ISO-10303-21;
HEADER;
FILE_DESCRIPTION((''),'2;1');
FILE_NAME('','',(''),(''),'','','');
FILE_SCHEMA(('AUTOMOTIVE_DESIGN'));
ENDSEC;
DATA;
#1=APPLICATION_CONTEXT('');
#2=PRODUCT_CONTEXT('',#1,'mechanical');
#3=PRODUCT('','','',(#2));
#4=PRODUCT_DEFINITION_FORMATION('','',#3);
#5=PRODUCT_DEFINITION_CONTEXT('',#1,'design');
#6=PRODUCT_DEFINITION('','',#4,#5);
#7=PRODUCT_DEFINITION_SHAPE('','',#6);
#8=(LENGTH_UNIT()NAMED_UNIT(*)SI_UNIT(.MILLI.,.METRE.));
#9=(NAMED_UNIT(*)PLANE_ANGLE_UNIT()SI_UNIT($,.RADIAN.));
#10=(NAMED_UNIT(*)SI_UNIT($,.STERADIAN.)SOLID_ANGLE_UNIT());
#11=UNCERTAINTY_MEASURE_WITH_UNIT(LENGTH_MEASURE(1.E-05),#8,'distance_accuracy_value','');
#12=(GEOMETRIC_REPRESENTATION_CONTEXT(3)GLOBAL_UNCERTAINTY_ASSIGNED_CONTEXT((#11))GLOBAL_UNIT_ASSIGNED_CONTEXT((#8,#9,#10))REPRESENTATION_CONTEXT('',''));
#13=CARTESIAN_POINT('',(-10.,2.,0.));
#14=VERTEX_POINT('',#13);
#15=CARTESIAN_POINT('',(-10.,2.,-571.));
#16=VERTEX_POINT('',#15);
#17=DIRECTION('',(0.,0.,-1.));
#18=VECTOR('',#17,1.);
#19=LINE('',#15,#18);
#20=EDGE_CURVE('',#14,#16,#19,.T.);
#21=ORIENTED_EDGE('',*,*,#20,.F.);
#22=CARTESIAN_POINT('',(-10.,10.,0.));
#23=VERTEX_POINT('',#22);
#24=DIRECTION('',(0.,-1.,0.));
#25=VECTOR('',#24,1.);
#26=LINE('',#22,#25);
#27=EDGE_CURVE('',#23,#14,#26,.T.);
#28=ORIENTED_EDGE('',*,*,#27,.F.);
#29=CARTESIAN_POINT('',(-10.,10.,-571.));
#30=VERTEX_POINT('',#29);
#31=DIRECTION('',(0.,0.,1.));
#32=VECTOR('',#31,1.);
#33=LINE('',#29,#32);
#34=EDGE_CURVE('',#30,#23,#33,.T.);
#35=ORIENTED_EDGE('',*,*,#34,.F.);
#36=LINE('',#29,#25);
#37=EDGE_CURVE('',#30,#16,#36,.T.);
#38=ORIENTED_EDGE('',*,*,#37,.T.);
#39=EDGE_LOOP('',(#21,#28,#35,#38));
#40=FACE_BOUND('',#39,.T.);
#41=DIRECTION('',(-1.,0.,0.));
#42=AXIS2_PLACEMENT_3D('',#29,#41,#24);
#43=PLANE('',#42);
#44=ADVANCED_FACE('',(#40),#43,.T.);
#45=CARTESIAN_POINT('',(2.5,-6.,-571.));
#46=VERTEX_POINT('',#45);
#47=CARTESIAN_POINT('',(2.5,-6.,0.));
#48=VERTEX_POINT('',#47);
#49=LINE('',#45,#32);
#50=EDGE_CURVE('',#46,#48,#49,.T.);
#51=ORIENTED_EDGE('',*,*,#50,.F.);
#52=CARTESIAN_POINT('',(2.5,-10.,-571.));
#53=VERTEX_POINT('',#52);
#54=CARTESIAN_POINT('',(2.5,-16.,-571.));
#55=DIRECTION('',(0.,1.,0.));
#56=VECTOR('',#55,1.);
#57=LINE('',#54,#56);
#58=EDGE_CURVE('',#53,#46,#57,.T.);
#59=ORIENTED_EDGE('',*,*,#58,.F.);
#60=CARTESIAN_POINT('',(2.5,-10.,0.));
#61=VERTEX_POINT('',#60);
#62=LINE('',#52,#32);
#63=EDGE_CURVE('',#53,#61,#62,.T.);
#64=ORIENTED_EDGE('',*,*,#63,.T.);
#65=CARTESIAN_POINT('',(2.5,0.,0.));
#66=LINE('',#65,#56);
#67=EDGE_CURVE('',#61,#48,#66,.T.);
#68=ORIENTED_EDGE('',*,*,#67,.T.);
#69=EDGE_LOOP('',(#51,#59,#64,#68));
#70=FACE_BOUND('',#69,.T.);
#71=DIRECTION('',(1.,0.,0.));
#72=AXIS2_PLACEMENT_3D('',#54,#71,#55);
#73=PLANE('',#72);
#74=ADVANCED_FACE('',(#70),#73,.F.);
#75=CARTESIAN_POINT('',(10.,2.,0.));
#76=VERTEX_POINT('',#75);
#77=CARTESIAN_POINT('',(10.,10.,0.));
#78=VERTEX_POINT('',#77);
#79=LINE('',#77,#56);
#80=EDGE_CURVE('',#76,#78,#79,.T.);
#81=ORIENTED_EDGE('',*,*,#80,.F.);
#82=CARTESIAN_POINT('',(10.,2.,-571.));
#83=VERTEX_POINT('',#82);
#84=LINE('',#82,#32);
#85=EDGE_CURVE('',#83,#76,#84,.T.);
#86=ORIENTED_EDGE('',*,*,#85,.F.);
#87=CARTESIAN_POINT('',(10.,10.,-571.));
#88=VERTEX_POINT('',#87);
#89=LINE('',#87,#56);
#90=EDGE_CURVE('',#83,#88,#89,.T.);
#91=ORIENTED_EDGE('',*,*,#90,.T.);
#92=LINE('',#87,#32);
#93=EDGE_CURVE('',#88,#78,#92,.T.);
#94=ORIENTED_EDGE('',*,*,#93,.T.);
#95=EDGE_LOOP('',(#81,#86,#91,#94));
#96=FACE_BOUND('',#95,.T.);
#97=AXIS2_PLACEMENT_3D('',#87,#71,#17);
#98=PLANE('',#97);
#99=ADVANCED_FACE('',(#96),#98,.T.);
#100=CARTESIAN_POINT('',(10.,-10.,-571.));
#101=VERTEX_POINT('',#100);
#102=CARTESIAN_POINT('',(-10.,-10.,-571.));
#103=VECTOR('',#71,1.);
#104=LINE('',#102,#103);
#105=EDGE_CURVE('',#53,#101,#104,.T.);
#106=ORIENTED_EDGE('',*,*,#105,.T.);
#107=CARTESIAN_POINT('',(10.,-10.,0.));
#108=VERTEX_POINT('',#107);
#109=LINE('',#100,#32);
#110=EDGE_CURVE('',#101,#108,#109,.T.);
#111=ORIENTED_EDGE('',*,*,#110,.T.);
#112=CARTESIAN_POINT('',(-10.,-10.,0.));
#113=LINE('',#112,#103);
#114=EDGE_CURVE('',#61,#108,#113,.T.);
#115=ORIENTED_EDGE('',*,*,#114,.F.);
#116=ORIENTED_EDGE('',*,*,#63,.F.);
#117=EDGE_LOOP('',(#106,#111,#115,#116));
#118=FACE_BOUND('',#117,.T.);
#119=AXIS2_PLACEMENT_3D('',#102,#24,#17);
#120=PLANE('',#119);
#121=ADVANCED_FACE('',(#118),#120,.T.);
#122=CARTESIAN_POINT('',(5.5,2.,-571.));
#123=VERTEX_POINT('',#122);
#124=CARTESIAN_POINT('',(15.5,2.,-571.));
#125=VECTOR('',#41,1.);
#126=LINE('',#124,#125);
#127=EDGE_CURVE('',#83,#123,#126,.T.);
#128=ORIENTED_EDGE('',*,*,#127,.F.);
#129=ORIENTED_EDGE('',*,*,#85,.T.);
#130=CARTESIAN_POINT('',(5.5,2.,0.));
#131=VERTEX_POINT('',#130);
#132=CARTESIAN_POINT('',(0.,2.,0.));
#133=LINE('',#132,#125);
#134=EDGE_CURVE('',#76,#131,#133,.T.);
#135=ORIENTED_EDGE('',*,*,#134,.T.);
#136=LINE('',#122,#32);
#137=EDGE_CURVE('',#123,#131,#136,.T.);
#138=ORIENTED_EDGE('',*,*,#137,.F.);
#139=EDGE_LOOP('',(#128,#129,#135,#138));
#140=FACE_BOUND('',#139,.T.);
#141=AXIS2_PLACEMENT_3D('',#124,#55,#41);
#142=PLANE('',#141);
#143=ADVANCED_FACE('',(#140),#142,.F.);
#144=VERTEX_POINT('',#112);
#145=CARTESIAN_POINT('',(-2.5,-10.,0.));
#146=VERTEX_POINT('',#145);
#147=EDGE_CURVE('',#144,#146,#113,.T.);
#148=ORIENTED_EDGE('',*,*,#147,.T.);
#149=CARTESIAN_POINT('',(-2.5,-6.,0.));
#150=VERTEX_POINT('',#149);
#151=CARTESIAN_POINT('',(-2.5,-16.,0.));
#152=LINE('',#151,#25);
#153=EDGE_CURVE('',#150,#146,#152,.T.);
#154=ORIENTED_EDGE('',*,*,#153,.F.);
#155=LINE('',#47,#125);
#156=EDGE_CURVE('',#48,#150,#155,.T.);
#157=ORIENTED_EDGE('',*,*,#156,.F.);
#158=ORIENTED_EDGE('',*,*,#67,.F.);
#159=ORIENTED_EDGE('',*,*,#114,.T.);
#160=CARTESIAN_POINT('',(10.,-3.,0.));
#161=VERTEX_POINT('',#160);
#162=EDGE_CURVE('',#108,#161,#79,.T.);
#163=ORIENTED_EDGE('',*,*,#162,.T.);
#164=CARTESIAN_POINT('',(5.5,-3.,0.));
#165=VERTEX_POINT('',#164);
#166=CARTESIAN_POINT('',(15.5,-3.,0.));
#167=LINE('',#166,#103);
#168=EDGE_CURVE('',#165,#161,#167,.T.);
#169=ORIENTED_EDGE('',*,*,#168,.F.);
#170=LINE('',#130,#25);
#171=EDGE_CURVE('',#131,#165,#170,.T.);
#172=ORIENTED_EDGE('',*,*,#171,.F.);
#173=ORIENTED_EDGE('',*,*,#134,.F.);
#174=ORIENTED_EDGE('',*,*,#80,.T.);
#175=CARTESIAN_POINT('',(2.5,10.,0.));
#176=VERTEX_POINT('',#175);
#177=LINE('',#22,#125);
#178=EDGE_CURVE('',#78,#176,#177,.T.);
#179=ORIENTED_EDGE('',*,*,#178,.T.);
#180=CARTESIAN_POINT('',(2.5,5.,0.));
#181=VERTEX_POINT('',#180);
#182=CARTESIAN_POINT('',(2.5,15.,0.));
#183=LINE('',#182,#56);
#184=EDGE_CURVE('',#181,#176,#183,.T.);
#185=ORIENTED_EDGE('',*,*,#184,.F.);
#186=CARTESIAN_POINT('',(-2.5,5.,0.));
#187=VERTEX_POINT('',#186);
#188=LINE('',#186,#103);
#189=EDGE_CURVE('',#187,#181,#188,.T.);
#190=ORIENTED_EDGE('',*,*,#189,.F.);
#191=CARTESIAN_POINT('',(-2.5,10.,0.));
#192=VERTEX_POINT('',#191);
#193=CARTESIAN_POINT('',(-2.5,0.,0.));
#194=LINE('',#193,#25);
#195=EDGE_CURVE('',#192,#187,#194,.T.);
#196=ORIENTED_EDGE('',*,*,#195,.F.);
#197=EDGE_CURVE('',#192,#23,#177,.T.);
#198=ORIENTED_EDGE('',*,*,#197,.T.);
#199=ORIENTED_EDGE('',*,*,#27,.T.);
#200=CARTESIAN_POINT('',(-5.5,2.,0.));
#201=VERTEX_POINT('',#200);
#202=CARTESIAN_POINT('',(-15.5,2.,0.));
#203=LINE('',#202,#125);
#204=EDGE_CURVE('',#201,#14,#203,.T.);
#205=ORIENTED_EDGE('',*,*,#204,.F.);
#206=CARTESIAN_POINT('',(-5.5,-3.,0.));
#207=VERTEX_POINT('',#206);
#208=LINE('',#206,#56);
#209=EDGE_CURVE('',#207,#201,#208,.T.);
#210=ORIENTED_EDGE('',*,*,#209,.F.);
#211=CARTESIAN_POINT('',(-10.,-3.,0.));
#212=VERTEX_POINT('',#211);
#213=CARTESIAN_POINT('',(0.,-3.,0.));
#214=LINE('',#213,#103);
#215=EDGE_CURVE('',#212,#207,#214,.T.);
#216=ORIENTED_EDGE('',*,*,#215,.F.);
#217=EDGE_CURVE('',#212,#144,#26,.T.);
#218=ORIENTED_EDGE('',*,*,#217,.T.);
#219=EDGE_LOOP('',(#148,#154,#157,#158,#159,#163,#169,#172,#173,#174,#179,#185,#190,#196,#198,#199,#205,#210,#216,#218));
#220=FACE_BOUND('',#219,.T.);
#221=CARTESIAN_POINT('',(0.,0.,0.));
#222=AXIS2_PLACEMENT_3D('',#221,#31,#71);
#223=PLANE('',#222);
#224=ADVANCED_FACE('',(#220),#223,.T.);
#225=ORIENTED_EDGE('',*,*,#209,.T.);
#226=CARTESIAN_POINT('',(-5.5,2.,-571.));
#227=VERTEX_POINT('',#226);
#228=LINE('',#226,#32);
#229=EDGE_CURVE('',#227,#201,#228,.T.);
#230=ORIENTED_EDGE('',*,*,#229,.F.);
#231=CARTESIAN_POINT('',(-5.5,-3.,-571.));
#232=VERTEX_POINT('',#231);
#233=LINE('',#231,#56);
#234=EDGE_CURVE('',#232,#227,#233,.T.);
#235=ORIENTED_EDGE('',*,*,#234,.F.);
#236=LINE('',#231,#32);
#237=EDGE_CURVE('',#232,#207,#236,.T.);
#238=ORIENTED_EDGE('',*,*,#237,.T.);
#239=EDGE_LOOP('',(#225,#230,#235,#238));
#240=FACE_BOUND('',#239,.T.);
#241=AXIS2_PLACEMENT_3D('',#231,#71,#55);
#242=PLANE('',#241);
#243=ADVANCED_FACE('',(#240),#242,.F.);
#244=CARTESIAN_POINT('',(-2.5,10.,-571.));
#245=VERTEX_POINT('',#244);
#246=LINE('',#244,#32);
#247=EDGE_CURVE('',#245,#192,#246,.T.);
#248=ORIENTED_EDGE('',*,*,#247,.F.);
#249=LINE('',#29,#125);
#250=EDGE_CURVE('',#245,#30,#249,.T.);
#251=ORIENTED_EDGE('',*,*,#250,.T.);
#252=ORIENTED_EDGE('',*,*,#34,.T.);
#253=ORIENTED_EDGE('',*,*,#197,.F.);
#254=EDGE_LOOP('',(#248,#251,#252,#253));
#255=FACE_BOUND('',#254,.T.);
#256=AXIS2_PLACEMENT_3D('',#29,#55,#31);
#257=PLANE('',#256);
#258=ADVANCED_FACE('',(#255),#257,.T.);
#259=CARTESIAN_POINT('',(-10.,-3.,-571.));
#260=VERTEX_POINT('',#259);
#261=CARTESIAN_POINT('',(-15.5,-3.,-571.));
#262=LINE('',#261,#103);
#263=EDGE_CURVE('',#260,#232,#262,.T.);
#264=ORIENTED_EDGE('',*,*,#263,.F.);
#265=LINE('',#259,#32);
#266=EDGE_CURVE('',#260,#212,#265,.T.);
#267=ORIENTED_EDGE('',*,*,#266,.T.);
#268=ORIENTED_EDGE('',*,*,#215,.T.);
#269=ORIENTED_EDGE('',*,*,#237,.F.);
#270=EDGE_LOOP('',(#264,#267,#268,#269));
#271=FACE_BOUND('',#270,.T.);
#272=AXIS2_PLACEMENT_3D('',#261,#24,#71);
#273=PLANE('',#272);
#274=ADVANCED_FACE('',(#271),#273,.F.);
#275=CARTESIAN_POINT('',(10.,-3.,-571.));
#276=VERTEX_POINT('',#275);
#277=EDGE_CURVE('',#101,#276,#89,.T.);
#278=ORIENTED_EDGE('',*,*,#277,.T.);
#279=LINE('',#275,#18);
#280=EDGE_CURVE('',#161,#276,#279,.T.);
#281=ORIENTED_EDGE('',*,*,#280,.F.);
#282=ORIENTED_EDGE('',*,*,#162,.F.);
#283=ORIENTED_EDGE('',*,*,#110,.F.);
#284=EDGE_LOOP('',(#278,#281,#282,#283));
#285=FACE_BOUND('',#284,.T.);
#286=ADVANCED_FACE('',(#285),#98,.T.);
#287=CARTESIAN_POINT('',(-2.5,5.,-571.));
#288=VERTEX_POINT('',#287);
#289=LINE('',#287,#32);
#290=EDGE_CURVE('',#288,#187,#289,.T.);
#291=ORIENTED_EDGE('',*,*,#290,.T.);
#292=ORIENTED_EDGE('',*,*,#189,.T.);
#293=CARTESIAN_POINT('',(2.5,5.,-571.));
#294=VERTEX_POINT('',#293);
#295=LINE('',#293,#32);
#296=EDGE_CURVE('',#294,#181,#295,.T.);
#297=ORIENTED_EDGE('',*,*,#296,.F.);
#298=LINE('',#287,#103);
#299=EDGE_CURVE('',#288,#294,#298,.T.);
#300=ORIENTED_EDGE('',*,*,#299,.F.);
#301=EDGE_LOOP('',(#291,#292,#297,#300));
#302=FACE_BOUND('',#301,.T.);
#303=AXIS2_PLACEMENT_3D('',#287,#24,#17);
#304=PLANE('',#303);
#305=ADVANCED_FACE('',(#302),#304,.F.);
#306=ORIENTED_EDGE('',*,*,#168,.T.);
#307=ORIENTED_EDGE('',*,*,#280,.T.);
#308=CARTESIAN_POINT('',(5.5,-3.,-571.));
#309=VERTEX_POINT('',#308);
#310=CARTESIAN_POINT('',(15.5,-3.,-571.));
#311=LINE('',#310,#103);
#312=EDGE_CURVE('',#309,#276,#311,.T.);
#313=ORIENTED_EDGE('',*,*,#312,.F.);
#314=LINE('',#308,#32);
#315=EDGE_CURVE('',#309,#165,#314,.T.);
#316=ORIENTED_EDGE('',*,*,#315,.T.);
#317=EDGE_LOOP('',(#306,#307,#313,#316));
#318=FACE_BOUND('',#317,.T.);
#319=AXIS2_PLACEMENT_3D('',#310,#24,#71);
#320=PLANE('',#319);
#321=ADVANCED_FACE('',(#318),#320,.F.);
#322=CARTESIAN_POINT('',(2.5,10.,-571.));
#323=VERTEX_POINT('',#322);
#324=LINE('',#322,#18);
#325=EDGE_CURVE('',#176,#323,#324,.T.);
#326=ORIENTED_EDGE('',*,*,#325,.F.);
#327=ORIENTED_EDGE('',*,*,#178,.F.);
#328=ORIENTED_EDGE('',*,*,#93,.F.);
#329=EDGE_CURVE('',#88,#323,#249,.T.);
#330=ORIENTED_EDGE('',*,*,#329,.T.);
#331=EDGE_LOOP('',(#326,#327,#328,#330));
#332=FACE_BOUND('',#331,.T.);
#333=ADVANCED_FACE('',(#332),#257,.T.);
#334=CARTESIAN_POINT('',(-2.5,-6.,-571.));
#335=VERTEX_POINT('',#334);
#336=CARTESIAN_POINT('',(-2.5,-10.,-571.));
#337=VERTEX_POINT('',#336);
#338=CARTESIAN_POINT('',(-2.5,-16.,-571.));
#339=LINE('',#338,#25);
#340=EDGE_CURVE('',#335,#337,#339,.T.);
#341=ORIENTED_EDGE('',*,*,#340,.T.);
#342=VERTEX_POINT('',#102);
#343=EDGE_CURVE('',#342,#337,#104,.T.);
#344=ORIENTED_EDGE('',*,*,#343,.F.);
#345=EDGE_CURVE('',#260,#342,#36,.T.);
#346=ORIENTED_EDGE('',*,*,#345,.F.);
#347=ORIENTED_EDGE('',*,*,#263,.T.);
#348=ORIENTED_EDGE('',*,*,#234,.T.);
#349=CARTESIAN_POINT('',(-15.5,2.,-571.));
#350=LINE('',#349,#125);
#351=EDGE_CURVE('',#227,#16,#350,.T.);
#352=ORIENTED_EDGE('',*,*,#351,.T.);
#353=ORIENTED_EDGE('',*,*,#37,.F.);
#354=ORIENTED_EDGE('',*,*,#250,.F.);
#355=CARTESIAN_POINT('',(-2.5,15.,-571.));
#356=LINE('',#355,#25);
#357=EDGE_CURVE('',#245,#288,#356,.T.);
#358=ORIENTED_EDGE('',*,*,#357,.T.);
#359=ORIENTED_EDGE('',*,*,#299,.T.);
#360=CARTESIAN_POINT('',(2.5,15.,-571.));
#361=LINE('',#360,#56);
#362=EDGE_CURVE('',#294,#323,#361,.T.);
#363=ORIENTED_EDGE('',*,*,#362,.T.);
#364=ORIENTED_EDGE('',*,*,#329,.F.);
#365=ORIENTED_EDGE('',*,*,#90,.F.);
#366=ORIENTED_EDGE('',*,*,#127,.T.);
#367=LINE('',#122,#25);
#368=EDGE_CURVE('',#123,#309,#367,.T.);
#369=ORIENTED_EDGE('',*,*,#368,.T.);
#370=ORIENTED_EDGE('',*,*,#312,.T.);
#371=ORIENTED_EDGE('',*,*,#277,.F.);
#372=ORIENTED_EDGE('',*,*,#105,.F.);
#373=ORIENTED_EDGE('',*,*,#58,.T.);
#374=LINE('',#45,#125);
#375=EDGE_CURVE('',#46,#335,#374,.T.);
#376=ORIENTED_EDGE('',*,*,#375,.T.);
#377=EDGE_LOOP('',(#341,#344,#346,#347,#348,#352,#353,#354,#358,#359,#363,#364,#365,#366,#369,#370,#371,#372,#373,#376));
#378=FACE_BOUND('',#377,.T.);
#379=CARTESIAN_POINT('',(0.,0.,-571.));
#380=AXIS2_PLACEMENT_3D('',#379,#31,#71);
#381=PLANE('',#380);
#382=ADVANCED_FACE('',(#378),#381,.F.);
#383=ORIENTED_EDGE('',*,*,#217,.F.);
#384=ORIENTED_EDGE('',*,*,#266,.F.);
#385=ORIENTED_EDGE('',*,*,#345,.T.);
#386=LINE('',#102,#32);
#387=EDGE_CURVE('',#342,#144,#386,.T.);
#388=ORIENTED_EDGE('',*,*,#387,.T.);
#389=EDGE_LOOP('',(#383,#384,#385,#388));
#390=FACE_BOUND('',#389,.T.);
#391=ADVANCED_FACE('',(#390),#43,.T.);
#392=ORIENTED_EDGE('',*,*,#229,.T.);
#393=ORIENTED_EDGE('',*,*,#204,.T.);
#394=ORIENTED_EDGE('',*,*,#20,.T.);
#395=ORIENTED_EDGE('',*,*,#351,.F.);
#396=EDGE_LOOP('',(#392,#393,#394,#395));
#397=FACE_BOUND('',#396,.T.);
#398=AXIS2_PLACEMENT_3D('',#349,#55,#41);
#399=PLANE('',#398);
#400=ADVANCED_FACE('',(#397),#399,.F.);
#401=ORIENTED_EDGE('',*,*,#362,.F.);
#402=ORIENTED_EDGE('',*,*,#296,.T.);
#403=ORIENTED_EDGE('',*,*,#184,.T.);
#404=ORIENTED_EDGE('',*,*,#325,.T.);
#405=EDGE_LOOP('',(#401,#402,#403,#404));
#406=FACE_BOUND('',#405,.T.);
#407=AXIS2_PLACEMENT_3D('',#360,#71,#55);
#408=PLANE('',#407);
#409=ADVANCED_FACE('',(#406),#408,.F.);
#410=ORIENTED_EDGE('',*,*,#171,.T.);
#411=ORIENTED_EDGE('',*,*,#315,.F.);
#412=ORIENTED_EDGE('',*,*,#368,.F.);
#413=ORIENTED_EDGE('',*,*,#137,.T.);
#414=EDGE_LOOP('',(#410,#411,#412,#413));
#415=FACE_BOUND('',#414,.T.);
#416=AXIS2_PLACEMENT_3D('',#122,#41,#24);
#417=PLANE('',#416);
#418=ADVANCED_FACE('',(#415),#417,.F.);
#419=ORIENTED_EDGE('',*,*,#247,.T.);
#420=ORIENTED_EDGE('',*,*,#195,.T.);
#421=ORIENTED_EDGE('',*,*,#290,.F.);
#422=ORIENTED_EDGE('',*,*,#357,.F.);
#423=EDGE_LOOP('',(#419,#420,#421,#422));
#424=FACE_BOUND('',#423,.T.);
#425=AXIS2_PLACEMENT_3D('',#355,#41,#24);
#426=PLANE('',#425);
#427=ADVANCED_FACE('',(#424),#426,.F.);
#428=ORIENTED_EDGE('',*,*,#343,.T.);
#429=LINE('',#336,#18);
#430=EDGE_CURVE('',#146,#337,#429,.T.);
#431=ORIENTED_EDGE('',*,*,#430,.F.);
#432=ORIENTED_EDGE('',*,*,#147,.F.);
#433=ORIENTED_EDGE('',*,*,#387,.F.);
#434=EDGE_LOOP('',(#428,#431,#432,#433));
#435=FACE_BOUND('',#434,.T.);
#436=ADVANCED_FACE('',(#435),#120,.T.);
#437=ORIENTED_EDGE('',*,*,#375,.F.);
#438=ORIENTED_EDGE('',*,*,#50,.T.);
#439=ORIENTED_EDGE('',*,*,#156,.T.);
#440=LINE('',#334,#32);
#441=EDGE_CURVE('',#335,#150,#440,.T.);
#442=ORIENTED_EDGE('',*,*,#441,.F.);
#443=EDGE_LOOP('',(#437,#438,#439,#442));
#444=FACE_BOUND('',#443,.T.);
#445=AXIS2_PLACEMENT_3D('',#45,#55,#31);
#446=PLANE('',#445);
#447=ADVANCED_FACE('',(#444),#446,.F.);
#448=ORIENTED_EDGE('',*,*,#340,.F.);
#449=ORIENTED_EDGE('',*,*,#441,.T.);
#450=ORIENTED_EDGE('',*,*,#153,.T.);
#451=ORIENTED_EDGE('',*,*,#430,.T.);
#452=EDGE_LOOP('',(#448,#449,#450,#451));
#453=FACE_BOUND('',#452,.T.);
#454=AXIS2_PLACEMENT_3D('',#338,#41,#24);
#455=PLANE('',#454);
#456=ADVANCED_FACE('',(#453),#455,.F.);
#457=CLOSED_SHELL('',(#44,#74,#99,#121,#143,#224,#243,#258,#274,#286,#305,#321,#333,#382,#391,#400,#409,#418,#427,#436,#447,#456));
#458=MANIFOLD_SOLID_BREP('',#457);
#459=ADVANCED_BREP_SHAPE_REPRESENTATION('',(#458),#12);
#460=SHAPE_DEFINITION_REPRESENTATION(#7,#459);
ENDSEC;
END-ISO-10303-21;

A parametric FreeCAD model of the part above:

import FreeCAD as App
import Part
import Sketcher

V = App.Vector


def add_polygon(sketch, points):
    """Adds a closed chain of lines whose ends are joined by coincident constraints."""
    first, n = sketch.GeometryCount, len(points)
    for a, b in zip(points, points[1:] + points[:1]):
        sketch.addGeometry(Part.LineSegment(App.Vector(*a, 0), App.Vector(*b, 0)), False)
    for i in range(n):
        sketch.addConstraint(Sketcher.Constraint("Coincident", first + i, 2, first + (i + 1) % n, 1))

doc = App.newDocument("Part")
body = doc.addObject("PartDesign::Body", "Body")

sketch1 = doc.addObject("Sketcher::SketchObject", "Sketch")
body.addObject(sketch1)
sketch1.AttachmentSupport = (doc.XY_Plane, [""])
sketch1.MapMode = "FlatFace"
add_polygon(sketch1, [(-10, 10), (-10, -10), (10, -10), (10, 10)])
sketch1.addConstraint(Sketcher.Constraint("Vertical", 0))
sketch1.addConstraint(Sketcher.Constraint("Horizontal", 1))
sketch1.addConstraint(Sketcher.Constraint("Vertical", 2))
sketch1.addConstraint(Sketcher.Constraint("Horizontal", 3))
sketch1.addConstraint(Sketcher.Constraint("Symmetric", 0, 2, 2, 2, -1, 1))
sketch1.addConstraint(Sketcher.Constraint("Equal", 3, 0))
sketch1.addConstraint(Sketcher.Constraint("DistanceX", 1, 1, 1, 2, 20.0))
pad1 = doc.addObject("PartDesign::Pad", "Pad")
body.addObject(pad1)
pad1.Profile = sketch1
pad1.Length = 571
pad1.Reversed = True

sketch2 = doc.addObject("Sketcher::SketchObject", "Sketch001")
body.addObject(sketch2)
sketch2.AttachmentSupport = (doc.XY_Plane, [""])
sketch2.MapMode = "FlatFace"
add_polygon(sketch2, [(-2, 15), (-2, 5), (2, 5), (2, 15)])
sketch2.addConstraint(Sketcher.Constraint("Vertical", 0))
sketch2.addConstraint(Sketcher.Constraint("Horizontal", 1))
sketch2.addConstraint(Sketcher.Constraint("Vertical", 2))
sketch2.addConstraint(Sketcher.Constraint("Horizontal", 3))
sketch2.addConstraint(Sketcher.Constraint("DistanceX", 1, 1, 1, 2, 5.0))
sketch2.addConstraint(Sketcher.Constraint("DistanceY", 0, 2, 0, 1, 10.0))
sketch2.addConstraint(Sketcher.Constraint("DistanceY", -1, 1, 0, 2, 5.0))
sketch2.addConstraint(Sketcher.Constraint("DistanceX", 0, 2, -1, 1, 2.5))
pocket1 = doc.addObject("PartDesign::Pocket", "Pocket")
body.addObject(pocket1)
pocket1.Profile = sketch2
pocket1.Type = "ThroughAll"
doc.recompute()

datumline = doc.addObject("PartDesign::Line", "DatumLine")
body.addObject(datumline)
datumline.Placement = App.Placement(V(0, -0.5, 0), App.Rotation(V(0, 0, 1), V(0, 0, 1)))
polarpattern = doc.addObject("PartDesign::PolarPattern", "PolarPattern")
body.addObject(polarpattern)
polarpattern.Originals = [pocket1]
polarpattern.Axis = (datumline, [""])
polarpattern.Angle = 360
polarpattern.Occurrences = 4
body.Tip = polarpattern

doc.recompute()
